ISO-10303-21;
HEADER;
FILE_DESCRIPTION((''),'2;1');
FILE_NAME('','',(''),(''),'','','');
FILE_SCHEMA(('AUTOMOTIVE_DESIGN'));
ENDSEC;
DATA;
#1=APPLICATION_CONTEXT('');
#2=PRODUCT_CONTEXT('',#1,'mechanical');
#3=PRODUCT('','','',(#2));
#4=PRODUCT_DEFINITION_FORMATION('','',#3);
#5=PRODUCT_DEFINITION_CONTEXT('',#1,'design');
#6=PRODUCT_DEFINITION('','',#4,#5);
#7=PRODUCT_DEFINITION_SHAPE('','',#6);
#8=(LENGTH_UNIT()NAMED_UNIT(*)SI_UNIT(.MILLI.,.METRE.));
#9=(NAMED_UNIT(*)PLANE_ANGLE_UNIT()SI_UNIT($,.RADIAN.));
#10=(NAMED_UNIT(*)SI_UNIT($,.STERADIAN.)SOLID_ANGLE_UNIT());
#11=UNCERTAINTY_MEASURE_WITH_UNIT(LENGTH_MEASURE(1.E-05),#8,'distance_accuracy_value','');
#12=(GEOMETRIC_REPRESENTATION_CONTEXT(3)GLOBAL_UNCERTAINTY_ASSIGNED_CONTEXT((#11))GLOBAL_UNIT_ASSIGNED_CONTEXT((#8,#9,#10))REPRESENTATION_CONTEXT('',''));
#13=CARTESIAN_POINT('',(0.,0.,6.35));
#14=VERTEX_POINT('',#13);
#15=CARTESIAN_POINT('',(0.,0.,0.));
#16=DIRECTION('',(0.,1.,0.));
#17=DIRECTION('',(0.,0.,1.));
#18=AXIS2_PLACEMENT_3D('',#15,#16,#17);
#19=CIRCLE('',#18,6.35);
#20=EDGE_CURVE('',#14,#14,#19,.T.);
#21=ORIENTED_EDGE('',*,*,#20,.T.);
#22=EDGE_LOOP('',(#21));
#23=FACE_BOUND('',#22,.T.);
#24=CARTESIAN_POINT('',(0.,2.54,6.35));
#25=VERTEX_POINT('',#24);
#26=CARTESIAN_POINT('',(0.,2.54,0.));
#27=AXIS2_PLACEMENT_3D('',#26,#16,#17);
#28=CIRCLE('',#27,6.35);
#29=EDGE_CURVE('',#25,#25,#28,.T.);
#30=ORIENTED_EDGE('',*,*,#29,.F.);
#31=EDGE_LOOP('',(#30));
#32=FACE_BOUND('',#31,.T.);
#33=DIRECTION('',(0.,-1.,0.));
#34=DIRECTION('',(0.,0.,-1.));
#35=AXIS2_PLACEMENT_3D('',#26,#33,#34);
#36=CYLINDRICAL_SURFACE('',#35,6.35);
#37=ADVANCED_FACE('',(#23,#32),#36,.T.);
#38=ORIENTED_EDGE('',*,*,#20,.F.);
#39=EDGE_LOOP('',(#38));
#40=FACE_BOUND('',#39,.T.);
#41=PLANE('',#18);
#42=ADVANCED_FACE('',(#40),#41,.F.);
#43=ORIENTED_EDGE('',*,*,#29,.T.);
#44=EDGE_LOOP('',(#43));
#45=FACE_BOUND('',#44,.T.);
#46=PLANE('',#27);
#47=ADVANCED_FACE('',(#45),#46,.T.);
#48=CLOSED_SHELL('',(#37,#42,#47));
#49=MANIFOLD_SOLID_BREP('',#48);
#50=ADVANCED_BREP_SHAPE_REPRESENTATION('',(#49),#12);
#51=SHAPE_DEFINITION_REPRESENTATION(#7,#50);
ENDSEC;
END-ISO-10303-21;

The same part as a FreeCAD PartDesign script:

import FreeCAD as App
import Part
import Sketcher
Q = App.Units.Quantity

doc = App.newDocument("Part")
body = doc.addObject("PartDesign::Body", "Body")

# Sketch on XZ plane
sketch1 = doc.addObject("Sketcher::SketchObject", "Sketch")
body.addObject(sketch1)
sketch1.AttachmentSupport = (doc.XZ_Plane, [""])
sketch1.MapMode = "FlatFace"
sketch1.addGeometry(Part.Circle(App.Vector(0, 0, 0), App.Vector(0, 0, 1), 6), False)
sketch1.addConstraint([
    Sketcher.Constraint("Coincident", 0, 3, -1, 1),
    Sketcher.Constraint("Diameter", 0, Q("0.5 in")),
])
pad1 = doc.addObject("PartDesign::Pad", "Pad")
body.addObject(pad1)
pad1.Profile = sketch1
pad1.Length = Q("0.1 in")
pad1.Reversed = True

doc.recompute()
